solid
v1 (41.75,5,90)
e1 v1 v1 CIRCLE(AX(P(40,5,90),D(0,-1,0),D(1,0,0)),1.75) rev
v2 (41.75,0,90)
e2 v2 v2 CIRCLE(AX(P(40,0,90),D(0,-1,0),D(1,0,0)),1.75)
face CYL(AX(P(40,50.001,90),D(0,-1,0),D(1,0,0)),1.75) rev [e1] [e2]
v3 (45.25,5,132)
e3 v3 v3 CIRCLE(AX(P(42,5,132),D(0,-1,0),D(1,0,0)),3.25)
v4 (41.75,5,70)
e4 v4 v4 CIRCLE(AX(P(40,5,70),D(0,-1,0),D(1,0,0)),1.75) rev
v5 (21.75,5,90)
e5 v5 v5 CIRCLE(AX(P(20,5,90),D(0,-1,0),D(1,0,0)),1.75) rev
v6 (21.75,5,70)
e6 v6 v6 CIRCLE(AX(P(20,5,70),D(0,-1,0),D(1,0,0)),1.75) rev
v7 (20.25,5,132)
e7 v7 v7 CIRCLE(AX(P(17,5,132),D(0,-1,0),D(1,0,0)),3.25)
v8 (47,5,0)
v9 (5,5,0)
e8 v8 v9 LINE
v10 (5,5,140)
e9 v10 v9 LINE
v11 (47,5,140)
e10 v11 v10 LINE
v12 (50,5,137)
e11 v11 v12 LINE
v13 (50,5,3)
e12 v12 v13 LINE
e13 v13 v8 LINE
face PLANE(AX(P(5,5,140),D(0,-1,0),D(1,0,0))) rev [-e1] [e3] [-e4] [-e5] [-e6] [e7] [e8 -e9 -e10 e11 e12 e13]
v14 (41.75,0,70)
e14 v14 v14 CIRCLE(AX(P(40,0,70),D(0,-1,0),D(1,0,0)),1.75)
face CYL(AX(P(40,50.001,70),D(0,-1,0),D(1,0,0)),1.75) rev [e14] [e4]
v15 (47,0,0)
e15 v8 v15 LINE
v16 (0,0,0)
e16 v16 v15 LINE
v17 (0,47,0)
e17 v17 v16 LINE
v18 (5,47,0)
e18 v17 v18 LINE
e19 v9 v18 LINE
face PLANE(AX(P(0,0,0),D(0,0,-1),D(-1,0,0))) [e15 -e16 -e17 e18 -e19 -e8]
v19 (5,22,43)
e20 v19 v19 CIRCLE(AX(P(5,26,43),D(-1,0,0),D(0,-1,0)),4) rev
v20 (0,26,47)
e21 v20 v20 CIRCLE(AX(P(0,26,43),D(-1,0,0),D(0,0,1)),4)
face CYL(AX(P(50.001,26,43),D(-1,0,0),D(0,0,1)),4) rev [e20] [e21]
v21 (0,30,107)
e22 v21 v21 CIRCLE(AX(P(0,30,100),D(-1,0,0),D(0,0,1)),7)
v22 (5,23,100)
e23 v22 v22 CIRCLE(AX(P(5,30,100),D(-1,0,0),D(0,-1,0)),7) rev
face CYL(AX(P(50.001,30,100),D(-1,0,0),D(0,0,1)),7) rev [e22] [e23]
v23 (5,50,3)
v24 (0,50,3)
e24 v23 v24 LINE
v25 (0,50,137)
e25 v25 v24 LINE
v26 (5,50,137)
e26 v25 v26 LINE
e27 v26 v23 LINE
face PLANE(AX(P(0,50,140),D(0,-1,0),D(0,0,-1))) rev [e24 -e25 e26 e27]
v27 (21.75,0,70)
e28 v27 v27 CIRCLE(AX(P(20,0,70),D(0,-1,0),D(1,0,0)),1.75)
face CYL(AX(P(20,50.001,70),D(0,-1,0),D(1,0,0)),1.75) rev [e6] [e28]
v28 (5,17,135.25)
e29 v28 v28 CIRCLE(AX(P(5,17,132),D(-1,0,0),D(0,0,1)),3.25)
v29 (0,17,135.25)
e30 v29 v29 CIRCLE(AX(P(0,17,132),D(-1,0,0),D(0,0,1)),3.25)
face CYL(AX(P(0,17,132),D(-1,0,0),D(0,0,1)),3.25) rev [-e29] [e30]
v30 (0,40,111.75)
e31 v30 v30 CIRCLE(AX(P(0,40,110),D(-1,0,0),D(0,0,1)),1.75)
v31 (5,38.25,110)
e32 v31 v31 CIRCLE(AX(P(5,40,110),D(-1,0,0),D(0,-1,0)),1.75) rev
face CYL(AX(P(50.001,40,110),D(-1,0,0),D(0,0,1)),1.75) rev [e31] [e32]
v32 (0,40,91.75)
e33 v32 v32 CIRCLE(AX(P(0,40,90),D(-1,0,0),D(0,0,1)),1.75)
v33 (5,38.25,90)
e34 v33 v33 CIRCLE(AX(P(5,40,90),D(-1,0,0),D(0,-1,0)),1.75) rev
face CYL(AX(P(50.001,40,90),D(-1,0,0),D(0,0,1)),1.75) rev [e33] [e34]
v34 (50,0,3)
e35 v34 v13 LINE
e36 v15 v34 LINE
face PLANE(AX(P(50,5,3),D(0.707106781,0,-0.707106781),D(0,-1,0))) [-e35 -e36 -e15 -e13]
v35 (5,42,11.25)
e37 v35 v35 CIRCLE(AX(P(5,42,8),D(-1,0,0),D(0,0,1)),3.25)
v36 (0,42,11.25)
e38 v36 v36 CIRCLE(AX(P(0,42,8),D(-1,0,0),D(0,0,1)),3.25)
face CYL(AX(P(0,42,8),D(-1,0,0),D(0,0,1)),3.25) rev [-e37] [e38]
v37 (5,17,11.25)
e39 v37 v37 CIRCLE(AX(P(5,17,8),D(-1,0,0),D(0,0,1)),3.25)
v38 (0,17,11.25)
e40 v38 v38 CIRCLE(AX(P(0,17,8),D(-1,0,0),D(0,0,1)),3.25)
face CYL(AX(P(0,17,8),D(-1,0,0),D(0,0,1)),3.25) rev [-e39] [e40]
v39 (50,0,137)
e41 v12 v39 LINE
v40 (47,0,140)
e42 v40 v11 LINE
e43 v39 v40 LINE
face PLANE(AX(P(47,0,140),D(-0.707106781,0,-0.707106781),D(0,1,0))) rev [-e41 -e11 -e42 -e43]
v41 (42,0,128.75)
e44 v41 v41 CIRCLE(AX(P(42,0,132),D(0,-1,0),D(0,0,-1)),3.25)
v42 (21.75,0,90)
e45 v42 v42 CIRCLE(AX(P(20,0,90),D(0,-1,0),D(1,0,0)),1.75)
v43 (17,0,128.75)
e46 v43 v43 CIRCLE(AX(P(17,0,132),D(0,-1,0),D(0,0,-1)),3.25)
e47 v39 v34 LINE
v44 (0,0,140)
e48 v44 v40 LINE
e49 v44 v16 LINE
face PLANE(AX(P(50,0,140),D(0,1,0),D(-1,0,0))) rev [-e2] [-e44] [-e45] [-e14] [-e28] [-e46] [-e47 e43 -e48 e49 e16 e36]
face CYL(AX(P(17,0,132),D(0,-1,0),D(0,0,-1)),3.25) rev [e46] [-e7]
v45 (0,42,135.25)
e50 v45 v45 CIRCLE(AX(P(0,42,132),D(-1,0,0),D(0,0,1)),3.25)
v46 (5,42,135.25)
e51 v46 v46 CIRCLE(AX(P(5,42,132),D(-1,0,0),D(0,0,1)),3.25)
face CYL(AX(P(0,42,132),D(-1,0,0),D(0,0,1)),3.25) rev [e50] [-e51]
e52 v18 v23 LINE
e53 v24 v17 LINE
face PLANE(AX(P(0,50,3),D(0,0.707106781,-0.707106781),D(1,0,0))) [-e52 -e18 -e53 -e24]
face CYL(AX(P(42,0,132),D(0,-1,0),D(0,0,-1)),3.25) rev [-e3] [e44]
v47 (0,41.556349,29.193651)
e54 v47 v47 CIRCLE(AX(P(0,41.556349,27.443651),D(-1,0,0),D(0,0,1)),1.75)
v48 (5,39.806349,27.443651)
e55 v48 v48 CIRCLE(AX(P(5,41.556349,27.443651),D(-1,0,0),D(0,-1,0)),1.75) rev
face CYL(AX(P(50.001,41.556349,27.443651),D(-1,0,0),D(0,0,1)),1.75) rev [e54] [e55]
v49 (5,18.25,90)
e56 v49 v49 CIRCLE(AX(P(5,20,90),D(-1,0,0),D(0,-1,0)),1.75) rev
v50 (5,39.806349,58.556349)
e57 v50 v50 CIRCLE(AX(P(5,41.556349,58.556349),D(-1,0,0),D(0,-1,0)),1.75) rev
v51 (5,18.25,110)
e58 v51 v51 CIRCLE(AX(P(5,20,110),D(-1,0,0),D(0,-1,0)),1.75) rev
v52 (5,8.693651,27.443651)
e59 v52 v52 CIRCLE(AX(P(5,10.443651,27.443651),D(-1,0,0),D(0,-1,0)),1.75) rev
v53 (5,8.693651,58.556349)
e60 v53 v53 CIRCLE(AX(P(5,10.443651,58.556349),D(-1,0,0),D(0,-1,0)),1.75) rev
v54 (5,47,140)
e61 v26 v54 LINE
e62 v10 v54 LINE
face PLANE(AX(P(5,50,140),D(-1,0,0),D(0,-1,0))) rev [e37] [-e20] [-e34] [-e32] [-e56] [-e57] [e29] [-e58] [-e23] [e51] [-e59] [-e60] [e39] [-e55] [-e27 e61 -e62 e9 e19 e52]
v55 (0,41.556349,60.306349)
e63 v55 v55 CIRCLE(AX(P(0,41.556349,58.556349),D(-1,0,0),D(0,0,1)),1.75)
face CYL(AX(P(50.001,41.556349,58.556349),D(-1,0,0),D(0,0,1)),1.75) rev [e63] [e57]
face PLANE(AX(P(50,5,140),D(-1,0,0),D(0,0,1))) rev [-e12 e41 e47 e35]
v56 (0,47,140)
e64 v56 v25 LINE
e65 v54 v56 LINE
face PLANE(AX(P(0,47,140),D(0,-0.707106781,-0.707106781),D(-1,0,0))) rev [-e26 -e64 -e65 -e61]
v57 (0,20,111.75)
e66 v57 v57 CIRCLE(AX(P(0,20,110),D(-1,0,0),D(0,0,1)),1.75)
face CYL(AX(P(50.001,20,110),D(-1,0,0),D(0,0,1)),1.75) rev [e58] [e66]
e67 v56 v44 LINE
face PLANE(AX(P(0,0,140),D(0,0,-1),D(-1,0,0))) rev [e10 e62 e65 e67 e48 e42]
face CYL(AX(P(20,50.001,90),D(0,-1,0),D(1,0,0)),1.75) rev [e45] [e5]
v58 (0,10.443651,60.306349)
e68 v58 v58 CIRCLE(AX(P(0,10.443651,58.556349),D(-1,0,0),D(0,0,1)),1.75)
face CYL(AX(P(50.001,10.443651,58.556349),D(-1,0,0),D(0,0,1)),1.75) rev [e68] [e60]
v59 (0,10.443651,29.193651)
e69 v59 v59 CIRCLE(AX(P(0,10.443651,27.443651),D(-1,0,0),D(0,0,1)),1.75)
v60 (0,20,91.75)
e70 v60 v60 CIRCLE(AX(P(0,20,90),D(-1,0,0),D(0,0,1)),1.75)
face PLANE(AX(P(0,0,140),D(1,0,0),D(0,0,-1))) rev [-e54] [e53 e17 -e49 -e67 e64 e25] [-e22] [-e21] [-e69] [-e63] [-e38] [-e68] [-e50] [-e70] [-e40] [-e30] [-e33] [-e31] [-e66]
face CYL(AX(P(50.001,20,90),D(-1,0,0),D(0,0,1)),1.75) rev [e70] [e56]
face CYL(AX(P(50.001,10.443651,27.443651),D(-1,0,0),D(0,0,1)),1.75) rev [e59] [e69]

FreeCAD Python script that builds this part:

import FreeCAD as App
import Part
import Sketcher
Q = App.Units.Quantity


def edges_at(feature, points):
    """Names of the edges that pass closest to the given points."""
    edges = feature.Shape.Edges
    near = lambda p: min(range(len(edges)), key=lambda i: edges[i].distToShape(Part.Vertex(*p))[0])
    return sorted({f"Edge{near(p) + 1}" for p in points})


def add_polygon(sketch, points):
    """Adds a closed chain of lines whose ends are joined by coincident constraints."""
    first, n = sketch.GeometryCount, len(points)
    for a, b in zip(points, points[1:] + points[:1]):
        sketch.addGeometry(Part.LineSegment(App.Vector(*a, 0), App.Vector(*b, 0)), False)
    for i in range(n):
        sketch.addConstraint(Sketcher.Constraint("Coincident", first + i, 2, first + (i + 1) % n, 1))

doc = App.newDocument("Part")
body = doc.addObject("PartDesign::Body", "Body")

# Sketch on XY plane
sketch1 = doc.addObject("Sketcher::SketchObject", "Sketch")
body.addObject(sketch1)
sketch1.AttachmentSupport = (doc.XY_Plane, [""])
sketch1.MapMode = "FlatFace"
add_polygon(sketch1, [(0, 50), (0, 0), (50, 0), (50, 5), (5, 5), (5, 50)])  # lines 0-5
sketch1.addConstraint([
    Sketcher.Constraint("Vertical", 0),
    Sketcher.Constraint("Horizontal", 1),
    Sketcher.Constraint("Vertical", 2),
    Sketcher.Constraint("Horizontal", 3),
    Sketcher.Constraint("Vertical", 4),
    Sketcher.Constraint("Horizontal", 5),
    Sketcher.Constraint("Coincident", 0, 2, -1, 1),
    Sketcher.Constraint("Equal", 1, 0),
    Sketcher.Constraint("Equal", 5, 2),
    Sketcher.Constraint("DistanceX", 1, 1, 1, 2, 50.0),
    Sketcher.Constraint("DistanceX", 3, 2, 3, 1, 45.0),
])
pad1 = doc.addObject("PartDesign::Pad", "Pad")
body.addObject(pad1)
pad1.Profile = sketch1
pad1.Length = 140

# Sketch on XZ plane
sketch2 = doc.addObject("Sketcher::SketchObject", "Sketch001")
body.addObject(sketch2)
sketch2.AttachmentSupport = (doc.XZ_Plane, [""])
sketch2.MapMode = "FlatFace"
sketch2.addGeometry([
    Part.Circle(App.Vector(17, 132, 0), App.Vector(0, 0, 1), 3.2),
    Part.Circle(App.Vector(42, 132, 0), App.Vector(0, 0, 1), 3.2),
], False)
sketch2.addConstraint([
    Sketcher.Constraint("Equal", 0, 1),
    Sketcher.Constraint("Horizontal", 0, 3, 1, 3),
    Sketcher.Constraint("Diameter", 0, 6.5),
    Sketcher.Constraint("DistanceX", -1, 1, 0, 3, 17.0),
    Sketcher.Constraint("DistanceY", -1, 1, 0, 3, 132.0),
    Sketcher.Constraint("DistanceX", -1, 1, 1, 3, 42.0),
])
doc.recompute()
hole = doc.addObject("PartDesign::Hole", "Hole")
body.addObject(hole)
hole.Profile = sketch2
hole.ThreadType = "None"
hole.Diameter = 6.5
hole.DepthType = "ThroughAll"

# Sketch on XZ plane
sketch3 = doc.addObject("Sketcher::SketchObject", "Sketch002")
body.addObject(sketch3)
sketch3.AttachmentSupport = (doc.XZ_Plane, [""])
sketch3.MapMode = "FlatFace"
sketch3.AttachmentOffset = App.Placement(App.Vector(0, 0, -42), App.Rotation())
add_polygon(sketch3, [(7, 132), (0, 132), (0, 135.2), (5, 135.2)])  # lines 0-3
sketch3.addGeometry(Part.LineSegment(App.Vector(0, 132, 0), App.Vector(7, 132, 0)), True)  # axis
sketch3.addConstraint([
    Sketcher.Constraint("Horizontal", 0),
    Sketcher.Constraint("Vertical", 1),
    Sketcher.Constraint("Horizontal", 2),
    Sketcher.Constraint("Horizontal", 4),
    Sketcher.Constraint("Coincident", 4, 1, 0, 2),
    Sketcher.Constraint("PointOnObject", 0, 2, -2),
    Sketcher.Constraint("Equal", 0, 4),
    Sketcher.Constraint("DistanceX", 2, 1, 2, 2, 5.0),
    Sketcher.Constraint("Angle", 3, Q("-59 deg")),
    Sketcher.Constraint("DistanceY", -1, 1, 0, 2, 132.0),
    Sketcher.Constraint("DistanceY", 1, 1, 1, 2, 3.25),
])
groove = doc.addObject("PartDesign::Groove", "Groove")
body.addObject(groove)
groove.Profile = sketch3
groove.ReferenceAxis = (sketch3, ["Axis0"])
groove.Angle = 360
doc.recompute()

linearpattern = doc.addObject("PartDesign::LinearPattern", "LinearPattern")
body.addObject(linearpattern)
linearpattern.Originals = [groove]
linearpattern.Direction = (doc.Y_Axis, [""])
linearpattern.Mode = "offset"
linearpattern.Offset = 25
linearpattern.Occurrences = 2
linearpattern.Reversed = True
body.Tip = linearpattern
doc.recompute()

datumplane = doc.addObject("PartDesign::Plane", "DatumPlane")
body.addObject(datumplane)
datumplane.AttachmentSupport = (doc.XY_Plane, [""])
datumplane.MapMode = "FlatFace"
datumplane.AttachmentOffset = App.Placement(App.Vector(0, 0, 70), App.Rotation())
mirrored = doc.addObject("PartDesign::Mirrored", "Mirrored")
body.addObject(mirrored)
mirrored.Originals = [groove]
mirrored.MirrorPlane = (datumplane, [""])
body.Tip = mirrored

# Sketch on XZ plane
sketch4 = doc.addObject("Sketcher::SketchObject", "Sketch003")
body.addObject(sketch4)
sketch4.AttachmentSupport = (doc.XZ_Plane, [""])
sketch4.MapMode = "FlatFace"
sketch4.AttachmentOffset = App.Placement(App.Vector(0, 0, -17), App.Rotation())
add_polygon(sketch4, [(0, 8), (7, 8), (5, 4.8), (0, 4.8)])  # lines 0-3
sketch4.addGeometry(Part.LineSegment(App.Vector(7, 8, 0), App.Vector(0, 8, 0)), True)  # axis
sketch4.addConstraint([
    Sketcher.Constraint("Horizontal", 0),
    Sketcher.Constraint("Horizontal", 2),
    Sketcher.Constraint("Vertical", 3),
    Sketcher.Constraint("Horizontal", 4),
    Sketcher.Constraint("Coincident", 4, 1, 0, 2),
    Sketcher.Constraint("PointOnObject", 2, 2, -2),
    Sketcher.Constraint("PointOnObject", 4, 2, -2),
    Sketcher.Constraint("DistanceX", 2, 2, 2, 1, 5.0),
    Sketcher.Constraint("Angle", 1, Q("-121 deg")),
    Sketcher.Constraint("DistanceY", -1, 1, 0, 2, 8.0),
    Sketcher.Constraint("DistanceY", 3, 1, 3, 2, 3.25),
])
groove2 = doc.addObject("PartDesign::Groove", "Groove001")
body.addObject(groove2)
groove2.Profile = sketch4
groove2.ReferenceAxis = (sketch4, ["Axis0"])
groove2.Angle = 360

# Sketch on XZ plane
sketch5 = doc.addObject("Sketcher::SketchObject", "Sketch004")
body.addObject(sketch5)
sketch5.AttachmentSupport = (doc.XZ_Plane, [""])
sketch5.MapMode = "FlatFace"
sketch5.addGeometry(Part.Circle(App.Vector(20, 70, 0), App.Vector(0, 0, 1), 1.8), False)
sketch5.addConstraint([
    Sketcher.Constraint("Diameter", 0, 3.5),
    Sketcher.Constraint("DistanceX", -1, 1, 0, 3, 20.0),
    Sketcher.Constraint("DistanceY", -1, 1, 0, 3, 70.0),
])
pocket1 = doc.addObject("PartDesign::Pocket", "Pocket")
body.addObject(pocket1)
pocket1.Profile = sketch5
pocket1.Type = "UpToFirst"

# Sketch on XZ plane
sketch6 = doc.addObject("Sketcher::SketchObject", "Sketch005")
body.addObject(sketch6)
sketch6.AttachmentSupport = (doc.XZ_Plane, [""])
sketch6.MapMode = "FlatFace"
sketch6.addGeometry(Part.Circle(App.Vector(20, 90, 0), App.Vector(0, 0, 1), 1.8), False)
sketch6.addConstraint([
    Sketcher.Constraint("Diameter", 0, 3.5),
    Sketcher.Constraint("DistanceX", -1, 1, 0, 3, 20.0),
    Sketcher.Constraint("DistanceY", -1, 1, 0, 3, 90.0),
])
pocket2 = doc.addObject("PartDesign::Pocket", "Pocket001")
body.addObject(pocket2)
pocket2.Profile = sketch6
pocket2.Type = "UpToFirst"

# Sketch on XZ plane
sketch7 = doc.addObject("Sketcher::SketchObject", "Sketch006")
body.addObject(sketch7)
sketch7.AttachmentSupport = (doc.XZ_Plane, [""])
sketch7.MapMode = "FlatFace"
sketch7.addGeometry(Part.Circle(App.Vector(40, 90, 0), App.Vector(0, 0, 1), 1.8), False)
sketch7.addConstraint([
    Sketcher.Constraint("Diameter", 0, 3.5),
    Sketcher.Constraint("DistanceX", -1, 1, 0, 3, 40.0),
    Sketcher.Constraint("DistanceY", -1, 1, 0, 3, 90.0),
])
pocket3 = doc.addObject("PartDesign::Pocket", "Pocket002")
body.addObject(pocket3)
pocket3.Profile = sketch7
pocket3.Type = "UpToFirst"

# Sketch on XZ plane
sketch8 = doc.addObject("Sketcher::SketchObject", "Sketch007")
body.addObject(sketch8)
sketch8.AttachmentSupport = (doc.XZ_Plane, [""])
sketch8.MapMode = "FlatFace"
sketch8.addGeometry(Part.Circle(App.Vector(40, 70, 0), App.Vector(0, 0, 1), 1.8), False)
sketch8.addConstraint([
    Sketcher.Constraint("Diameter", 0, 3.5),
    Sketcher.Constraint("DistanceX", -1, 1, 0, 3, 40.0),
    Sketcher.Constraint("DistanceY", -1, 1, 0, 3, 70.0),
])
pocket4 = doc.addObject("PartDesign::Pocket", "Pocket003")
body.addObject(pocket4)
pocket4.Profile = sketch8
pocket4.Type = "UpToFirst"

# Sketch on YZ plane
sketch9 = doc.addObject("Sketcher::SketchObject", "Sketch008")
body.addObject(sketch9)
sketch9.AttachmentSupport = (doc.YZ_Plane, [""])
sketch9.MapMode = "FlatFace"
sketch9.addGeometry(Part.Circle(App.Vector(40, 90, 0), App.Vector(0, 0, 1), 1.8), False)
sketch9.addConstraint([
    Sketcher.Constraint("Diameter", 0, 3.5),
    Sketcher.Constraint("DistanceX", -1, 1, 0, 3, 40.0),
    Sketcher.Constraint("DistanceY", -1, 1, 0, 3, 90.0),
])
pocket5 = doc.addObject("PartDesign::Pocket", "Pocket004")
body.addObject(pocket5)
pocket5.Profile = sketch9
pocket5.Type = "UpToFirst"
pocket5.Reversed = True

# Sketch on YZ plane
sketch10 = doc.addObject("Sketcher::SketchObject", "Sketch009")
body.addObject(sketch10)
sketch10.AttachmentSupport = (doc.YZ_Plane, [""])
sketch10.MapMode = "FlatFace"
sketch10.addGeometry(Part.Circle(App.Vector(40, 110, 0), App.Vector(0, 0, 1), 1.8), False)
sketch10.addConstraint([
    Sketcher.Constraint("Diameter", 0, 3.5),
    Sketcher.Constraint("DistanceX", -1, 1, 0, 3, 40.0),
    Sketcher.Constraint("DistanceY", -1, 1, 0, 3, 110.0),
])
pocket6 = doc.addObject("PartDesign::Pocket", "Pocket005")
body.addObject(pocket6)
pocket6.Profile = sketch10
pocket6.Type = "UpToFirst"
pocket6.Reversed = True

# Sketch on YZ plane
sketch11 = doc.addObject("Sketcher::SketchObject", "Sketch010")
body.addObject(sketch11)
sketch11.AttachmentSupport = (doc.YZ_Plane, [""])
sketch11.MapMode = "FlatFace"
sketch11.addGeometry(Part.Circle(App.Vector(20, 110, 0), App.Vector(0, 0, 1), 1.8), False)
sketch11.addConstraint([
    Sketcher.Constraint("Diameter", 0, 3.5),
    Sketcher.Constraint("DistanceX", -1, 1, 0, 3, 20.0),
    Sketcher.Constraint("DistanceY", -1, 1, 0, 3, 110.0),
])
pocket7 = doc.addObject("PartDesign::Pocket", "Pocket006")
body.addObject(pocket7)
pocket7.Profile = sketch11
pocket7.Type = "UpToFirst"
pocket7.Reversed = True

# Sketch on YZ plane
sketch12 = doc.addObject("Sketcher::SketchObject", "Sketch011")
body.addObject(sketch12)
sketch12.AttachmentSupport = (doc.YZ_Plane, [""])
sketch12.MapMode = "FlatFace"
sketch12.addGeometry(Part.Circle(App.Vector(20, 90, 0), App.Vector(0, 0, 1), 1.8), False)
sketch12.addConstraint([
    Sketcher.Constraint("Diameter", 0, 3.5),
    Sketcher.Constraint("DistanceX", -1, 1, 0, 3, 20.0),
    Sketcher.Constraint("DistanceY", -1, 1, 0, 3, 90.0),
])
pocket8 = doc.addObject("PartDesign::Pocket", "Pocket007")
body.addObject(pocket8)
pocket8.Profile = sketch12
pocket8.Type = "UpToFirst"
pocket8.Reversed = True

# Sketch on YZ plane
sketch13 = doc.addObject("Sketcher::SketchObject", "Sketch012")
body.addObject(sketch13)
sketch13.AttachmentSupport = (doc.YZ_Plane, [""])
sketch13.MapMode = "FlatFace"
sketch13.addGeometry(Part.Circle(App.Vector(30, 100, 0), App.Vector(0, 0, 1), 7), False)
sketch13.addConstraint([
    Sketcher.Constraint("Diameter", 0, 14.0),
    Sketcher.Constraint("DistanceX", -1, 1, 0, 3, 30.0),
    Sketcher.Constraint("DistanceY", -1, 1, 0, 3, 100.0),
])
pocket9 = doc.addObject("PartDesign::Pocket", "Pocket008")
body.addObject(pocket9)
pocket9.Profile = sketch13
pocket9.Type = "UpToFirst"
pocket9.Reversed = True

# Sketch on YZ plane
sketch14 = doc.addObject("Sketcher::SketchObject", "Sketch013")
body.addObject(sketch14)
sketch14.AttachmentSupport = (doc.YZ_Plane, [""])
sketch14.MapMode = "FlatFace"
sketch14.addGeometry(Part.Circle(App.Vector(26, 43, 0), App.Vector(0, 0, 1), 4), False)
sketch14.addConstraint([
    Sketcher.Constraint("Diameter", 0, 8.0),
    Sketcher.Constraint("DistanceX", -1, 1, 0, 3, 26.0),
    Sketcher.Constraint("DistanceY", -1, 1, 0, 3, 43.0),
])
pocket10 = doc.addObject("PartDesign::Pocket", "Pocket009")
body.addObject(pocket10)
pocket10.Profile = sketch14
pocket10.Type = "UpToFirst"
pocket10.Reversed = True

# Sketch on YZ plane
sketch15 = doc.addObject("Sketcher::SketchObject", "Sketch014")
body.addObject(sketch15)
sketch15.AttachmentSupport = (doc.YZ_Plane, [""])
sketch15.MapMode = "FlatFace"
sketch15.addGeometry(Part.Circle(App.Vector(41.6, 58.6, 0), App.Vector(0, 0, 1), 1.8), False)
sketch15.addConstraint([
    Sketcher.Constraint("Diameter", 0, 3.5),
    Sketcher.Constraint("DistanceX", -1, 1, 0, 3, 41.556349),
    Sketcher.Constraint("DistanceY", -1, 1, 0, 3, 58.556349),
])
pocket11 = doc.addObject("PartDesign::Pocket", "Pocket010")
body.addObject(pocket11)
pocket11.Profile = sketch15
pocket11.Type = "UpToFirst"
pocket11.Reversed = True

# Sketch on YZ plane
sketch16 = doc.addObject("Sketcher::SketchObject", "Sketch015")
body.addObject(sketch16)
sketch16.AttachmentSupport = (doc.YZ_Plane, [""])
sketch16.MapMode = "FlatFace"
sketch16.addGeometry(Part.Circle(App.Vector(10.4, 58.6, 0), App.Vector(0, 0, 1), 1.8), False)
sketch16.addConstraint([
    Sketcher.Constraint("Diameter", 0, 3.5),
    Sketcher.Constraint("DistanceX", -1, 1, 0, 3, 10.443651),
    Sketcher.Constraint("DistanceY", -1, 1, 0, 3, 58.556349),
])
pocket12 = doc.addObject("PartDesign::Pocket", "Pocket011")
body.addObject(pocket12)
pocket12.Profile = sketch16
pocket12.Type = "UpToFirst"
pocket12.Reversed = True

# Sketch on YZ plane
sketch17 = doc.addObject("Sketcher::SketchObject", "Sketch016")
body.addObject(sketch17)
sketch17.AttachmentSupport = (doc.YZ_Plane, [""])
sketch17.MapMode = "FlatFace"
sketch17.addGeometry(Part.Circle(App.Vector(10.4, 27.4, 0), App.Vector(0, 0, 1), 1.8), False)
sketch17.addConstraint([
    Sketcher.Constraint("Diameter", 0, 3.5),
    Sketcher.Constraint("DistanceX", -1, 1, 0, 3, 10.443651),
    Sketcher.Constraint("DistanceY", -1, 1, 0, 3, 27.443651),
])
pocket13 = doc.addObject("PartDesign::Pocket", "Pocket012")
body.addObject(pocket13)
pocket13.Profile = sketch17
pocket13.Type = "UpToFirst"
pocket13.Reversed = True

# Sketch on YZ plane
sketch18 = doc.addObject("Sketcher::SketchObject", "Sketch017")
body.addObject(sketch18)
sketch18.AttachmentSupport = (doc.YZ_Plane, [""])
sketch18.MapMode = "FlatFace"
sketch18.addGeometry(Part.Circle(App.Vector(41.6, 27.4, 0), App.Vector(0, 0, 1), 1.8), False)
sketch18.addConstraint([
    Sketcher.Constraint("Diameter", 0, 3.5),
    Sketcher.Constraint("DistanceX", -1, 1, 0, 3, 41.556349),
    Sketcher.Constraint("DistanceY", -1, 1, 0, 3, 27.443651),
])
pocket14 = doc.addObject("PartDesign::Pocket", "Pocket013")
body.addObject(pocket14)
pocket14.Profile = sketch18
pocket14.Type = "UpToFirst"
pocket14.Reversed = True
doc.recompute()

chamfer = doc.addObject("PartDesign::Chamfer", "Chamfer")
body.addObject(chamfer)
chamfer.Base = (pocket14, edges_at(pocket14, [
    (2.5, 50, 140),
    (2.5, 50, 0),
    (50, 2.5, 140),
    (50, 2.5, 0),
]))
chamfer.Size = 3

doc.recompute()
